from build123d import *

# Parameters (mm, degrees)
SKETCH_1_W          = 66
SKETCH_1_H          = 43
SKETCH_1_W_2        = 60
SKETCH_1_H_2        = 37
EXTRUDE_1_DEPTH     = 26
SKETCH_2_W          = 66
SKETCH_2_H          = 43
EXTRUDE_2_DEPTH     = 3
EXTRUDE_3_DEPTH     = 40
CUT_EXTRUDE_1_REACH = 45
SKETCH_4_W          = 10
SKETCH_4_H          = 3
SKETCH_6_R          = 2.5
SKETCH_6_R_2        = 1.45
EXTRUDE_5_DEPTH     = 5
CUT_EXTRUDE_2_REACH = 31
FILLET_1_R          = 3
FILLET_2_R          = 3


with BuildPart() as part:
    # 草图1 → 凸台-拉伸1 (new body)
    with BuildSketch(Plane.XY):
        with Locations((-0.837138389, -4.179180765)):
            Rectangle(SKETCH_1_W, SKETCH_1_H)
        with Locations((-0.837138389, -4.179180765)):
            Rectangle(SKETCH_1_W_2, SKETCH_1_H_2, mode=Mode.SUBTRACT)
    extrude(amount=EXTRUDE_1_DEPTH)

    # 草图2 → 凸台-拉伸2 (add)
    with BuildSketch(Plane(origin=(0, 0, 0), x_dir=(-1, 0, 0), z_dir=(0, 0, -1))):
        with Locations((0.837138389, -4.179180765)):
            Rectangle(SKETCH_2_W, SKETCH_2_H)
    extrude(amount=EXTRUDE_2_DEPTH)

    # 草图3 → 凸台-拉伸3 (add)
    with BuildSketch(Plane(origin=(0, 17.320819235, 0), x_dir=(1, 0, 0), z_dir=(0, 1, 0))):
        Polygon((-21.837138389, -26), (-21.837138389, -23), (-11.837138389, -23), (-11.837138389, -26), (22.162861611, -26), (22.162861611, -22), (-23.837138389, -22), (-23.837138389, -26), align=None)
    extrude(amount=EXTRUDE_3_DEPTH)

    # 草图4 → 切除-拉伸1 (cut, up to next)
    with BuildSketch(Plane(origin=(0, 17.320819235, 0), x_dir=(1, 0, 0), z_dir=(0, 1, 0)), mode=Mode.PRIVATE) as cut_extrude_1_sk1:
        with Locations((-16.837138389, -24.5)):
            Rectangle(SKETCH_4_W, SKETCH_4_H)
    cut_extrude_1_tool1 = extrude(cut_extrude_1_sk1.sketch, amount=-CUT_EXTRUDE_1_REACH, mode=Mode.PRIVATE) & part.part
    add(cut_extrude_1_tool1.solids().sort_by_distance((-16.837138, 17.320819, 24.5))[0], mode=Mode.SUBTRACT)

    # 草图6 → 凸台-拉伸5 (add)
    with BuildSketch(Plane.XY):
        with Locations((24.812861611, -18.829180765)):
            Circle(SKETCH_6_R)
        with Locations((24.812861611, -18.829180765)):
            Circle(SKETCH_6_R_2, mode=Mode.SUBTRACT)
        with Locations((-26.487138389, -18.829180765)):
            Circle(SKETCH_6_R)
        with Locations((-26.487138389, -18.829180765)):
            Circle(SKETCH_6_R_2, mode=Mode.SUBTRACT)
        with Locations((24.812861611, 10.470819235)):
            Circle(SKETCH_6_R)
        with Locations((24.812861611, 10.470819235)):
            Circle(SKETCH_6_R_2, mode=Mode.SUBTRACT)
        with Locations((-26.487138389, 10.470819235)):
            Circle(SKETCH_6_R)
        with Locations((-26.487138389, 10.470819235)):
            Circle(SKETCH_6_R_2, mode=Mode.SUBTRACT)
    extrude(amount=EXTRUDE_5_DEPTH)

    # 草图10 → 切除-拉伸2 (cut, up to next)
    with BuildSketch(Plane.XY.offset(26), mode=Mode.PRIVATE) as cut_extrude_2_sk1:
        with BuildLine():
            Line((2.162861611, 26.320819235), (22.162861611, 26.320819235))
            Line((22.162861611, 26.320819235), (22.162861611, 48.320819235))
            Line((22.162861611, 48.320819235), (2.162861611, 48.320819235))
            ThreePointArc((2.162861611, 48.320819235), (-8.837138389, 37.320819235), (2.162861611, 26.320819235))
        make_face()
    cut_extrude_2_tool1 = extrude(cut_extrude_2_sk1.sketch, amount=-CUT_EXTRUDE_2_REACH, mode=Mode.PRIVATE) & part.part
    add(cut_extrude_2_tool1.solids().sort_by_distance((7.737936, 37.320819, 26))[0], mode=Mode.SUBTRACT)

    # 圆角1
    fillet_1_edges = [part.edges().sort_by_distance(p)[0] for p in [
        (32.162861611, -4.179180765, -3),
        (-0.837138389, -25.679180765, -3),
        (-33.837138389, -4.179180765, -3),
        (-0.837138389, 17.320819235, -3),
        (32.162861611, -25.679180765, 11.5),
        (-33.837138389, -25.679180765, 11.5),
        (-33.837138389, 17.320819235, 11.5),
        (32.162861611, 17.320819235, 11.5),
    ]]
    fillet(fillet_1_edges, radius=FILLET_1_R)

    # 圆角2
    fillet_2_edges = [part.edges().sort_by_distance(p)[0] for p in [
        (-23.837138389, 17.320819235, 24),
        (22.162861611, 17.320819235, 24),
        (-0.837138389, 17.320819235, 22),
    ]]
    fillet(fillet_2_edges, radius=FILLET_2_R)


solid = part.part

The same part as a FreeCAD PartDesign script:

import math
import FreeCAD as App
import Part
import Sketcher

V = App.Vector


def edges_at(feature, points):
    """Names of the edges that pass closest to the given points."""
    edges = feature.Shape.Edges
    near = lambda p: min(range(len(edges)), key=lambda i: edges[i].distToShape(Part.Vertex(*p))[0])
    return sorted({f"Edge{near(p) + 1}" for p in points})

doc = App.newDocument("Part")
body = doc.addObject("PartDesign::Body", "Body")

# Sketch on XY plane
sketch1 = doc.addObject("Sketcher::SketchObject", "Sketch")
body.addObject(sketch1)
sketch1.AttachmentSupport = (doc.XY_Plane, [""])
sketch1.MapMode = "FlatFace"
sketch1.addGeometry(Part.LineSegment(V(-34, 17, 0), V(-34, -26, 0)), False)
sketch1.addGeometry(Part.LineSegment(V(-34, -26, 0), V(32, -26, 0)), False)
sketch1.addGeometry(Part.LineSegment(V(32, -26, 0), V(32, 17, 0)), False)
sketch1.addGeometry(Part.LineSegment(V(32, 17, 0), V(-34, 17, 0)), False)
sketch1.addGeometry(Part.LineSegment(V(29, -23, 0), V(-31, -23, 0)), False)
sketch1.addGeometry(Part.LineSegment(V(-31, -23, 0), V(-31, 14, 0)), False)
sketch1.addGeometry(Part.LineSegment(V(-31, 14, 0), V(29, 14, 0)), False)
sketch1.addGeometry(Part.LineSegment(V(29, 14, 0), V(29, -23, 0)), False)
sketch1.addConstraint(Sketcher.Constraint("Coincident", 0, 2, 1, 1))
sketch1.addConstraint(Sketcher.Constraint("Coincident", 1, 2, 2, 1))
sketch1.addConstraint(Sketcher.Constraint("Coincident", 2, 2, 3, 1))
sketch1.addConstraint(Sketcher.Constraint("Coincident", 3, 2, 0, 1))
sketch1.addConstraint(Sketcher.Constraint("Coincident", 4, 2, 5, 1))
sketch1.addConstraint(Sketcher.Constraint("Coincident", 5, 2, 6, 1))
sketch1.addConstraint(Sketcher.Constraint("Coincident", 6, 2, 7, 1))
sketch1.addConstraint(Sketcher.Constraint("Coincident", 7, 2, 4, 1))
sketch1.addConstraint(Sketcher.Constraint("Vertical", 0))
sketch1.addConstraint(Sketcher.Constraint("Horizontal", 1))
sketch1.addConstraint(Sketcher.Constraint("Vertical", 2))
sketch1.addConstraint(Sketcher.Constraint("Horizontal", 3))
sketch1.addConstraint(Sketcher.Constraint("Horizontal", 4))
sketch1.addConstraint(Sketcher.Constraint("Vertical", 5))
sketch1.addConstraint(Sketcher.Constraint("Horizontal", 6))
sketch1.addConstraint(Sketcher.Constraint("Vertical", 7))
sketch1.addConstraint(Sketcher.Constraint("DistanceX", 1, 1, 1, 2, 66.0))
sketch1.addConstraint(Sketcher.Constraint("DistanceX", 4, 2, 4, 1, 60.0))
sketch1.addConstraint(Sketcher.Constraint("DistanceY", 0, 2, 0, 1, 43.0))
sketch1.addConstraint(Sketcher.Constraint("DistanceY", 5, 1, 5, 2, 37.0))
sketch1.addConstraint(Sketcher.Constraint("DistanceX", 0, 2, 4, 2, 3.0))
sketch1.addConstraint(Sketcher.Constraint("DistanceY", 0, 2, 4, 2, 3.0))
sketch1.addConstraint(Sketcher.Constraint("DistanceX", 0, 2, -1, 1, 33.837138))
sketch1.addConstraint(Sketcher.Constraint("DistanceY", 0, 2, -1, 1, 25.679181))
pad1 = doc.addObject("PartDesign::Pad", "Pad")
body.addObject(pad1)
pad1.Profile = sketch1
pad1.Length = 26

# Sketch on XY plane
sketch2 = doc.addObject("Sketcher::SketchObject", "Sketch001")
body.addObject(sketch2)
sketch2.AttachmentSupport = (doc.XY_Plane, [""])
sketch2.MapMode = "FlatFace"
sketch2.addGeometry(Part.LineSegment(V(32, 17, 0), V(32, -26, 0)), False)
sketch2.addGeometry(Part.LineSegment(V(32, -26, 0), V(-34, -26, 0)), False)
sketch2.addGeometry(Part.LineSegment(V(-34, -26, 0), V(-34, 17, 0)), False)
sketch2.addGeometry(Part.LineSegment(V(-34, 17, 0), V(32, 17, 0)), False)
sketch2.addConstraint(Sketcher.Constraint("Coincident", 0, 2, 1, 1))
sketch2.addConstraint(Sketcher.Constraint("Coincident", 1, 2, 2, 1))
sketch2.addConstraint(Sketcher.Constraint("Coincident", 2, 2, 3, 1))
sketch2.addConstraint(Sketcher.Constraint("Coincident", 3, 2, 0, 1))
sketch2.addConstraint(Sketcher.Constraint("Vertical", 0))
sketch2.addConstraint(Sketcher.Constraint("Horizontal", 1))
sketch2.addConstraint(Sketcher.Constraint("Vertical", 2))
sketch2.addConstraint(Sketcher.Constraint("Horizontal", 3))
sketch2.addConstraint(Sketcher.Constraint("DistanceX", 1, 2, 1, 1, 66.0))
sketch2.addConstraint(Sketcher.Constraint("DistanceY", 0, 2, 0, 1, 43.0))
sketch2.addConstraint(Sketcher.Constraint("DistanceX", -1, 1, 0, 2, 32.162862))
sketch2.addConstraint(Sketcher.Constraint("DistanceY", 0, 2, -1, 1, 25.679181))
pad2 = doc.addObject("PartDesign::Pad", "Pad001")
body.addObject(pad2)
pad2.Profile = sketch2
pad2.Length = 3
pad2.Reversed = True

# Sketch on XZ plane
sketch3 = doc.addObject("Sketcher::SketchObject", "Sketch002")
body.addObject(sketch3)
sketch3.AttachmentSupport = (doc.XZ_Plane, [""])
sketch3.MapMode = "FlatFace"
sketch3.AttachmentOffset = App.Placement(V(0, 0, -17.320819), App.Rotation())
sketch3.addGeometry(Part.LineSegment(V(-21.8, 26, 0), V(-21.8, 23, 0)), False)
sketch3.addGeometry(Part.LineSegment(V(-21.8, 23, 0), V(-11.8, 23, 0)), False)
sketch3.addGeometry(Part.LineSegment(V(-11.8, 23, 0), V(-11.8, 26, 0)), False)
sketch3.addGeometry(Part.LineSegment(V(-11.8, 26, 0), V(22.2, 26, 0)), False)
sketch3.addGeometry(Part.LineSegment(V(22.2, 26, 0), V(22.2, 22, 0)), False)
sketch3.addGeometry(Part.LineSegment(V(22.2, 22, 0), V(-23.8, 22, 0)), False)
sketch3.addGeometry(Part.LineSegment(V(-23.8, 22, 0), V(-23.8, 26, 0)), False)
sketch3.addGeometry(Part.LineSegment(V(-23.8, 26, 0), V(-21.8, 26, 0)), False)
sketch3.addConstraint(Sketcher.Constraint("Coincident", 0, 2, 1, 1))
sketch3.addConstraint(Sketcher.Constraint("Coincident", 1, 2, 2, 1))
sketch3.addConstraint(Sketcher.Constraint("Coincident", 2, 2, 3, 1))
sketch3.addConstraint(Sketcher.Constraint("Coincident", 3, 2, 4, 1))
sketch3.addConstraint(Sketcher.Constraint("Coincident", 4, 2, 5, 1))
sketch3.addConstraint(Sketcher.Constraint("Coincident", 5, 2, 6, 1))
sketch3.addConstraint(Sketcher.Constraint("Coincident", 6, 2, 7, 1))
sketch3.addConstraint(Sketcher.Constraint("Coincident", 7, 2, 0, 1))
sketch3.addConstraint(Sketcher.Constraint("Vertical", 0))
sketch3.addConstraint(Sketcher.Constraint("Horizontal", 1))
sketch3.addConstraint(Sketcher.Constraint("Vertical", 2))
sketch3.addConstraint(Sketcher.Constraint("Horizontal", 3))
sketch3.addConstraint(Sketcher.Constraint("Vertical", 4))
sketch3.addConstraint(Sketcher.Constraint("Horizontal", 5))
sketch3.addConstraint(Sketcher.Constraint("Vertical", 6))
sketch3.addConstraint(Sketcher.Constraint("Horizontal", 7))
sketch3.addConstraint(Sketcher.Constraint("Horizontal", 3, 2, 6, 2))
sketch3.addConstraint(Sketcher.Constraint("DistanceX", 1, 1, 1, 2, 10.0))
sketch3.addConstraint(Sketcher.Constraint("DistanceX", 3, 1, 3, 2, 34.0))
sketch3.addConstraint(Sketcher.Constraint("DistanceX", 5, 2, 5, 1, 46.0))
sketch3.addConstraint(Sketcher.Constraint("DistanceY", 0, 2, 0, 1, 3.0))
sketch3.addConstraint(Sketcher.Constraint("DistanceY", 4, 2, 4, 1, 4.0))
sketch3.addConstraint(Sketcher.Constraint("DistanceY", -1, 1, 0, 2, 23.0))
sketch3.addConstraint(Sketcher.Constraint("DistanceX", 0, 2, -1, 1, 21.837138))
pad3 = doc.addObject("PartDesign::Pad", "Pad002")
body.addObject(pad3)
pad3.Profile = sketch3
pad3.Length = 40
pad3.Reversed = True

# Sketch on XZ plane
sketch4 = doc.addObject("Sketcher::SketchObject", "Sketch003")
body.addObject(sketch4)
sketch4.AttachmentSupport = (doc.XZ_Plane, [""])
sketch4.MapMode = "FlatFace"
sketch4.AttachmentOffset = App.Placement(V(0, 0, -17.320819), App.Rotation())
sketch4.addGeometry(Part.LineSegment(V(-21.8, 23, 0), V(-21.8, 26, 0)), False)
sketch4.addGeometry(Part.LineSegment(V(-21.8, 26, 0), V(-11.8, 26, 0)), False)
sketch4.addGeometry(Part.LineSegment(V(-11.8, 26, 0), V(-11.8, 23, 0)), False)
sketch4.addGeometry(Part.LineSegment(V(-11.8, 23, 0), V(-21.8, 23, 0)), False)
sketch4.addConstraint(Sketcher.Constraint("Coincident", 0, 2, 1, 1))
sketch4.addConstraint(Sketcher.Constraint("Coincident", 1, 2, 2, 1))
sketch4.addConstraint(Sketcher.Constraint("Coincident", 2, 2, 3, 1))
sketch4.addConstraint(Sketcher.Constraint("Coincident", 3, 2, 0, 1))
sketch4.addConstraint(Sketcher.Constraint("Vertical", 0))
sketch4.addConstraint(Sketcher.Constraint("Horizontal", 1))
sketch4.addConstraint(Sketcher.Constraint("Vertical", 2))
sketch4.addConstraint(Sketcher.Constraint("Horizontal", 3))
sketch4.addConstraint(Sketcher.Constraint("DistanceX", 1, 1, 1, 2, 10.0))
sketch4.addConstraint(Sketcher.Constraint("DistanceY", 0, 1, 0, 2, 3.0))
sketch4.addConstraint(Sketcher.Constraint("DistanceY", -1, 1, 0, 2, 26.0))
sketch4.addConstraint(Sketcher.Constraint("DistanceX", 0, 2, -1, 1, 21.837138))
pocket1 = doc.addObject("PartDesign::Pocket", "Pocket")
body.addObject(pocket1)
pocket1.Profile = sketch4
pocket1.Type = "UpToFirst"
pocket1.Reversed = True

# Sketch on XY plane
sketch5 = doc.addObject("Sketcher::SketchObject", "Sketch004")
body.addObject(sketch5)
sketch5.AttachmentSupport = (doc.XY_Plane, [""])
sketch5.MapMode = "FlatFace"
sketch5.addGeometry(Part.Circle(V(24.8, -18.8, 0), V(0, 0, 1), 2.5), False)
sketch5.addGeometry(Part.Circle(V(24.8, -18.8, 0), V(0, 0, 1), 1.4), False)
sketch5.addGeometry(Part.Circle(V(-26.5, -18.8, 0), V(0, 0, 1), 2.5), False)
sketch5.addGeometry(Part.Circle(V(-26.5, -18.8, 0), V(0, 0, 1), 1.4), False)
sketch5.addGeometry(Part.Circle(V(24.8, 10.5, 0), V(0, 0, 1), 2.5), False)
sketch5.addGeometry(Part.Circle(V(24.8, 10.5, 0), V(0, 0, 1), 1.4), False)
sketch5.addGeometry(Part.Circle(V(-26.5, 10.5, 0), V(0, 0, 1), 2.5), False)
sketch5.addGeometry(Part.Circle(V(-26.5, 10.5, 0), V(0, 0, 1), 1.4), False)
sketch5.addConstraint(Sketcher.Constraint("Coincident", 1, 3, 0, 3))
sketch5.addConstraint(Sketcher.Constraint("Coincident", 3, 3, 2, 3))
sketch5.addConstraint(Sketcher.Constraint("Coincident", 5, 3, 4, 3))
sketch5.addConstraint(Sketcher.Constraint("Coincident", 7, 3, 6, 3))
sketch5.addConstraint(Sketcher.Constraint("Equal", 0, 2))
sketch5.addConstraint(Sketcher.Constraint("Equal", 1, 3))
sketch5.addConstraint(Sketcher.Constraint("Equal", 2, 4))
sketch5.addConstraint(Sketcher.Constraint("Equal", 3, 5))
sketch5.addConstraint(Sketcher.Constraint("Equal", 4, 6))
sketch5.addConstraint(Sketcher.Constraint("Equal", 5, 7))
sketch5.addConstraint(Sketcher.Constraint("Horizontal", 1, 3, 2, 3))
sketch5.addConstraint(Sketcher.Constraint("Horizontal", 5, 3, 6, 3))
sketch5.addConstraint(Sketcher.Constraint("Vertical", 1, 3, 4, 3))
sketch5.addConstraint(Sketcher.Constraint("Vertical", 3, 3, 6, 3))
sketch5.addConstraint(Sketcher.Constraint("Diameter", 0, 5.0))
sketch5.addConstraint(Sketcher.Constraint("Diameter", 1, 2.9))
sketch5.addConstraint(Sketcher.Constraint("DistanceX", 2, 3, 0, 3, 51.3))
sketch5.addConstraint(Sketcher.Constraint("DistanceY", 0, 3, 4, 3, 29.3))
sketch5.addConstraint(Sketcher.Constraint("DistanceX", -1, 1, 0, 3, 24.812862))
sketch5.addConstraint(Sketcher.Constraint("DistanceY", 0, 3, -1, 1, 18.829181))
pad4 = doc.addObject("PartDesign::Pad", "Pad003")
body.addObject(pad4)
pad4.Profile = sketch5
pad4.Length = 5

# Sketch on XY plane
sketch6 = doc.addObject("Sketcher::SketchObject", "Sketch005")
body.addObject(sketch6)
sketch6.AttachmentSupport = (doc.XY_Plane, [""])
sketch6.MapMode = "FlatFace"
sketch6.AttachmentOffset = App.Placement(V(0, 0, 26), App.Rotation())
sketch6.addGeometry(Part.LineSegment(V(2, 26, 0), V(22, 26, 0)), False)
sketch6.addGeometry(Part.LineSegment(V(22, 26, 0), V(22, 48, 0)), False)
sketch6.addGeometry(Part.LineSegment(V(22, 48, 0), V(2, 48, 0)), False)
sketch6.addGeometry(Part.ArcOfCircle(Part.Circle(V(2, 37, 0), V(0, 0, 1), 11), math.radians(90), math.radians(270)), False)
sketch6.addConstraint(Sketcher.Constraint("Coincident", 0, 2, 1, 1))
sketch6.addConstraint(Sketcher.Constraint("Coincident", 1, 2, 2, 1))
sketch6.addConstraint(Sketcher.Constraint("Tangent", 2, 2, 3, 1))
sketch6.addConstraint(Sketcher.Constraint("Tangent", 3, 2, 0, 1))
sketch6.addConstraint(Sketcher.Constraint("Horizontal", 0))
sketch6.addConstraint(Sketcher.Constraint("Vertical", 1))
sketch6.addConstraint(Sketcher.Constraint("Horizontal", 2))
sketch6.addConstraint(Sketcher.Constraint("Radius", 3, 11.0))
sketch6.addConstraint(Sketcher.Constraint("DistanceX", 0, 1, 0, 2, 20.0))
sketch6.addConstraint(Sketcher.Constraint("DistanceX", -1, 1, 3, 3, 2.162862))
sketch6.addConstraint(Sketcher.Constraint("DistanceY", -1, 1, 3, 3, 37.320819))
pocket2 = doc.addObject("PartDesign::Pocket", "Pocket001")
body.addObject(pocket2)
pocket2.Profile = sketch6
pocket2.Type = "UpToFirst"
doc.recompute()

fillet = doc.addObject("PartDesign::Fillet", "Fillet")
body.addObject(fillet)
fillet.Base = (pocket2, edges_at(pocket2, [
    (32.163, -4.179, -3),
    (-0.837, -25.679, -3),
    (-33.837, -4.179, -3),
    (-0.837, 17.321, -3),
    (32.163, -25.679, 11.5),
    (-33.837, -25.679, 11.5),
    (-33.837, 17.321, 11.5),
    (32.163, 17.321, 11.5),
]))
fillet.Radius = 3
doc.recompute()

fillet2 = doc.addObject("PartDesign::Fillet", "Fillet001")
body.addObject(fillet2)
fillet2.Base = (fillet, edges_at(fillet, [(-23.837, 17.321, 24), (22.163, 17.321, 24), (-0.837, 17.321, 22)]))
fillet2.Radius = 3

doc.recompute()
